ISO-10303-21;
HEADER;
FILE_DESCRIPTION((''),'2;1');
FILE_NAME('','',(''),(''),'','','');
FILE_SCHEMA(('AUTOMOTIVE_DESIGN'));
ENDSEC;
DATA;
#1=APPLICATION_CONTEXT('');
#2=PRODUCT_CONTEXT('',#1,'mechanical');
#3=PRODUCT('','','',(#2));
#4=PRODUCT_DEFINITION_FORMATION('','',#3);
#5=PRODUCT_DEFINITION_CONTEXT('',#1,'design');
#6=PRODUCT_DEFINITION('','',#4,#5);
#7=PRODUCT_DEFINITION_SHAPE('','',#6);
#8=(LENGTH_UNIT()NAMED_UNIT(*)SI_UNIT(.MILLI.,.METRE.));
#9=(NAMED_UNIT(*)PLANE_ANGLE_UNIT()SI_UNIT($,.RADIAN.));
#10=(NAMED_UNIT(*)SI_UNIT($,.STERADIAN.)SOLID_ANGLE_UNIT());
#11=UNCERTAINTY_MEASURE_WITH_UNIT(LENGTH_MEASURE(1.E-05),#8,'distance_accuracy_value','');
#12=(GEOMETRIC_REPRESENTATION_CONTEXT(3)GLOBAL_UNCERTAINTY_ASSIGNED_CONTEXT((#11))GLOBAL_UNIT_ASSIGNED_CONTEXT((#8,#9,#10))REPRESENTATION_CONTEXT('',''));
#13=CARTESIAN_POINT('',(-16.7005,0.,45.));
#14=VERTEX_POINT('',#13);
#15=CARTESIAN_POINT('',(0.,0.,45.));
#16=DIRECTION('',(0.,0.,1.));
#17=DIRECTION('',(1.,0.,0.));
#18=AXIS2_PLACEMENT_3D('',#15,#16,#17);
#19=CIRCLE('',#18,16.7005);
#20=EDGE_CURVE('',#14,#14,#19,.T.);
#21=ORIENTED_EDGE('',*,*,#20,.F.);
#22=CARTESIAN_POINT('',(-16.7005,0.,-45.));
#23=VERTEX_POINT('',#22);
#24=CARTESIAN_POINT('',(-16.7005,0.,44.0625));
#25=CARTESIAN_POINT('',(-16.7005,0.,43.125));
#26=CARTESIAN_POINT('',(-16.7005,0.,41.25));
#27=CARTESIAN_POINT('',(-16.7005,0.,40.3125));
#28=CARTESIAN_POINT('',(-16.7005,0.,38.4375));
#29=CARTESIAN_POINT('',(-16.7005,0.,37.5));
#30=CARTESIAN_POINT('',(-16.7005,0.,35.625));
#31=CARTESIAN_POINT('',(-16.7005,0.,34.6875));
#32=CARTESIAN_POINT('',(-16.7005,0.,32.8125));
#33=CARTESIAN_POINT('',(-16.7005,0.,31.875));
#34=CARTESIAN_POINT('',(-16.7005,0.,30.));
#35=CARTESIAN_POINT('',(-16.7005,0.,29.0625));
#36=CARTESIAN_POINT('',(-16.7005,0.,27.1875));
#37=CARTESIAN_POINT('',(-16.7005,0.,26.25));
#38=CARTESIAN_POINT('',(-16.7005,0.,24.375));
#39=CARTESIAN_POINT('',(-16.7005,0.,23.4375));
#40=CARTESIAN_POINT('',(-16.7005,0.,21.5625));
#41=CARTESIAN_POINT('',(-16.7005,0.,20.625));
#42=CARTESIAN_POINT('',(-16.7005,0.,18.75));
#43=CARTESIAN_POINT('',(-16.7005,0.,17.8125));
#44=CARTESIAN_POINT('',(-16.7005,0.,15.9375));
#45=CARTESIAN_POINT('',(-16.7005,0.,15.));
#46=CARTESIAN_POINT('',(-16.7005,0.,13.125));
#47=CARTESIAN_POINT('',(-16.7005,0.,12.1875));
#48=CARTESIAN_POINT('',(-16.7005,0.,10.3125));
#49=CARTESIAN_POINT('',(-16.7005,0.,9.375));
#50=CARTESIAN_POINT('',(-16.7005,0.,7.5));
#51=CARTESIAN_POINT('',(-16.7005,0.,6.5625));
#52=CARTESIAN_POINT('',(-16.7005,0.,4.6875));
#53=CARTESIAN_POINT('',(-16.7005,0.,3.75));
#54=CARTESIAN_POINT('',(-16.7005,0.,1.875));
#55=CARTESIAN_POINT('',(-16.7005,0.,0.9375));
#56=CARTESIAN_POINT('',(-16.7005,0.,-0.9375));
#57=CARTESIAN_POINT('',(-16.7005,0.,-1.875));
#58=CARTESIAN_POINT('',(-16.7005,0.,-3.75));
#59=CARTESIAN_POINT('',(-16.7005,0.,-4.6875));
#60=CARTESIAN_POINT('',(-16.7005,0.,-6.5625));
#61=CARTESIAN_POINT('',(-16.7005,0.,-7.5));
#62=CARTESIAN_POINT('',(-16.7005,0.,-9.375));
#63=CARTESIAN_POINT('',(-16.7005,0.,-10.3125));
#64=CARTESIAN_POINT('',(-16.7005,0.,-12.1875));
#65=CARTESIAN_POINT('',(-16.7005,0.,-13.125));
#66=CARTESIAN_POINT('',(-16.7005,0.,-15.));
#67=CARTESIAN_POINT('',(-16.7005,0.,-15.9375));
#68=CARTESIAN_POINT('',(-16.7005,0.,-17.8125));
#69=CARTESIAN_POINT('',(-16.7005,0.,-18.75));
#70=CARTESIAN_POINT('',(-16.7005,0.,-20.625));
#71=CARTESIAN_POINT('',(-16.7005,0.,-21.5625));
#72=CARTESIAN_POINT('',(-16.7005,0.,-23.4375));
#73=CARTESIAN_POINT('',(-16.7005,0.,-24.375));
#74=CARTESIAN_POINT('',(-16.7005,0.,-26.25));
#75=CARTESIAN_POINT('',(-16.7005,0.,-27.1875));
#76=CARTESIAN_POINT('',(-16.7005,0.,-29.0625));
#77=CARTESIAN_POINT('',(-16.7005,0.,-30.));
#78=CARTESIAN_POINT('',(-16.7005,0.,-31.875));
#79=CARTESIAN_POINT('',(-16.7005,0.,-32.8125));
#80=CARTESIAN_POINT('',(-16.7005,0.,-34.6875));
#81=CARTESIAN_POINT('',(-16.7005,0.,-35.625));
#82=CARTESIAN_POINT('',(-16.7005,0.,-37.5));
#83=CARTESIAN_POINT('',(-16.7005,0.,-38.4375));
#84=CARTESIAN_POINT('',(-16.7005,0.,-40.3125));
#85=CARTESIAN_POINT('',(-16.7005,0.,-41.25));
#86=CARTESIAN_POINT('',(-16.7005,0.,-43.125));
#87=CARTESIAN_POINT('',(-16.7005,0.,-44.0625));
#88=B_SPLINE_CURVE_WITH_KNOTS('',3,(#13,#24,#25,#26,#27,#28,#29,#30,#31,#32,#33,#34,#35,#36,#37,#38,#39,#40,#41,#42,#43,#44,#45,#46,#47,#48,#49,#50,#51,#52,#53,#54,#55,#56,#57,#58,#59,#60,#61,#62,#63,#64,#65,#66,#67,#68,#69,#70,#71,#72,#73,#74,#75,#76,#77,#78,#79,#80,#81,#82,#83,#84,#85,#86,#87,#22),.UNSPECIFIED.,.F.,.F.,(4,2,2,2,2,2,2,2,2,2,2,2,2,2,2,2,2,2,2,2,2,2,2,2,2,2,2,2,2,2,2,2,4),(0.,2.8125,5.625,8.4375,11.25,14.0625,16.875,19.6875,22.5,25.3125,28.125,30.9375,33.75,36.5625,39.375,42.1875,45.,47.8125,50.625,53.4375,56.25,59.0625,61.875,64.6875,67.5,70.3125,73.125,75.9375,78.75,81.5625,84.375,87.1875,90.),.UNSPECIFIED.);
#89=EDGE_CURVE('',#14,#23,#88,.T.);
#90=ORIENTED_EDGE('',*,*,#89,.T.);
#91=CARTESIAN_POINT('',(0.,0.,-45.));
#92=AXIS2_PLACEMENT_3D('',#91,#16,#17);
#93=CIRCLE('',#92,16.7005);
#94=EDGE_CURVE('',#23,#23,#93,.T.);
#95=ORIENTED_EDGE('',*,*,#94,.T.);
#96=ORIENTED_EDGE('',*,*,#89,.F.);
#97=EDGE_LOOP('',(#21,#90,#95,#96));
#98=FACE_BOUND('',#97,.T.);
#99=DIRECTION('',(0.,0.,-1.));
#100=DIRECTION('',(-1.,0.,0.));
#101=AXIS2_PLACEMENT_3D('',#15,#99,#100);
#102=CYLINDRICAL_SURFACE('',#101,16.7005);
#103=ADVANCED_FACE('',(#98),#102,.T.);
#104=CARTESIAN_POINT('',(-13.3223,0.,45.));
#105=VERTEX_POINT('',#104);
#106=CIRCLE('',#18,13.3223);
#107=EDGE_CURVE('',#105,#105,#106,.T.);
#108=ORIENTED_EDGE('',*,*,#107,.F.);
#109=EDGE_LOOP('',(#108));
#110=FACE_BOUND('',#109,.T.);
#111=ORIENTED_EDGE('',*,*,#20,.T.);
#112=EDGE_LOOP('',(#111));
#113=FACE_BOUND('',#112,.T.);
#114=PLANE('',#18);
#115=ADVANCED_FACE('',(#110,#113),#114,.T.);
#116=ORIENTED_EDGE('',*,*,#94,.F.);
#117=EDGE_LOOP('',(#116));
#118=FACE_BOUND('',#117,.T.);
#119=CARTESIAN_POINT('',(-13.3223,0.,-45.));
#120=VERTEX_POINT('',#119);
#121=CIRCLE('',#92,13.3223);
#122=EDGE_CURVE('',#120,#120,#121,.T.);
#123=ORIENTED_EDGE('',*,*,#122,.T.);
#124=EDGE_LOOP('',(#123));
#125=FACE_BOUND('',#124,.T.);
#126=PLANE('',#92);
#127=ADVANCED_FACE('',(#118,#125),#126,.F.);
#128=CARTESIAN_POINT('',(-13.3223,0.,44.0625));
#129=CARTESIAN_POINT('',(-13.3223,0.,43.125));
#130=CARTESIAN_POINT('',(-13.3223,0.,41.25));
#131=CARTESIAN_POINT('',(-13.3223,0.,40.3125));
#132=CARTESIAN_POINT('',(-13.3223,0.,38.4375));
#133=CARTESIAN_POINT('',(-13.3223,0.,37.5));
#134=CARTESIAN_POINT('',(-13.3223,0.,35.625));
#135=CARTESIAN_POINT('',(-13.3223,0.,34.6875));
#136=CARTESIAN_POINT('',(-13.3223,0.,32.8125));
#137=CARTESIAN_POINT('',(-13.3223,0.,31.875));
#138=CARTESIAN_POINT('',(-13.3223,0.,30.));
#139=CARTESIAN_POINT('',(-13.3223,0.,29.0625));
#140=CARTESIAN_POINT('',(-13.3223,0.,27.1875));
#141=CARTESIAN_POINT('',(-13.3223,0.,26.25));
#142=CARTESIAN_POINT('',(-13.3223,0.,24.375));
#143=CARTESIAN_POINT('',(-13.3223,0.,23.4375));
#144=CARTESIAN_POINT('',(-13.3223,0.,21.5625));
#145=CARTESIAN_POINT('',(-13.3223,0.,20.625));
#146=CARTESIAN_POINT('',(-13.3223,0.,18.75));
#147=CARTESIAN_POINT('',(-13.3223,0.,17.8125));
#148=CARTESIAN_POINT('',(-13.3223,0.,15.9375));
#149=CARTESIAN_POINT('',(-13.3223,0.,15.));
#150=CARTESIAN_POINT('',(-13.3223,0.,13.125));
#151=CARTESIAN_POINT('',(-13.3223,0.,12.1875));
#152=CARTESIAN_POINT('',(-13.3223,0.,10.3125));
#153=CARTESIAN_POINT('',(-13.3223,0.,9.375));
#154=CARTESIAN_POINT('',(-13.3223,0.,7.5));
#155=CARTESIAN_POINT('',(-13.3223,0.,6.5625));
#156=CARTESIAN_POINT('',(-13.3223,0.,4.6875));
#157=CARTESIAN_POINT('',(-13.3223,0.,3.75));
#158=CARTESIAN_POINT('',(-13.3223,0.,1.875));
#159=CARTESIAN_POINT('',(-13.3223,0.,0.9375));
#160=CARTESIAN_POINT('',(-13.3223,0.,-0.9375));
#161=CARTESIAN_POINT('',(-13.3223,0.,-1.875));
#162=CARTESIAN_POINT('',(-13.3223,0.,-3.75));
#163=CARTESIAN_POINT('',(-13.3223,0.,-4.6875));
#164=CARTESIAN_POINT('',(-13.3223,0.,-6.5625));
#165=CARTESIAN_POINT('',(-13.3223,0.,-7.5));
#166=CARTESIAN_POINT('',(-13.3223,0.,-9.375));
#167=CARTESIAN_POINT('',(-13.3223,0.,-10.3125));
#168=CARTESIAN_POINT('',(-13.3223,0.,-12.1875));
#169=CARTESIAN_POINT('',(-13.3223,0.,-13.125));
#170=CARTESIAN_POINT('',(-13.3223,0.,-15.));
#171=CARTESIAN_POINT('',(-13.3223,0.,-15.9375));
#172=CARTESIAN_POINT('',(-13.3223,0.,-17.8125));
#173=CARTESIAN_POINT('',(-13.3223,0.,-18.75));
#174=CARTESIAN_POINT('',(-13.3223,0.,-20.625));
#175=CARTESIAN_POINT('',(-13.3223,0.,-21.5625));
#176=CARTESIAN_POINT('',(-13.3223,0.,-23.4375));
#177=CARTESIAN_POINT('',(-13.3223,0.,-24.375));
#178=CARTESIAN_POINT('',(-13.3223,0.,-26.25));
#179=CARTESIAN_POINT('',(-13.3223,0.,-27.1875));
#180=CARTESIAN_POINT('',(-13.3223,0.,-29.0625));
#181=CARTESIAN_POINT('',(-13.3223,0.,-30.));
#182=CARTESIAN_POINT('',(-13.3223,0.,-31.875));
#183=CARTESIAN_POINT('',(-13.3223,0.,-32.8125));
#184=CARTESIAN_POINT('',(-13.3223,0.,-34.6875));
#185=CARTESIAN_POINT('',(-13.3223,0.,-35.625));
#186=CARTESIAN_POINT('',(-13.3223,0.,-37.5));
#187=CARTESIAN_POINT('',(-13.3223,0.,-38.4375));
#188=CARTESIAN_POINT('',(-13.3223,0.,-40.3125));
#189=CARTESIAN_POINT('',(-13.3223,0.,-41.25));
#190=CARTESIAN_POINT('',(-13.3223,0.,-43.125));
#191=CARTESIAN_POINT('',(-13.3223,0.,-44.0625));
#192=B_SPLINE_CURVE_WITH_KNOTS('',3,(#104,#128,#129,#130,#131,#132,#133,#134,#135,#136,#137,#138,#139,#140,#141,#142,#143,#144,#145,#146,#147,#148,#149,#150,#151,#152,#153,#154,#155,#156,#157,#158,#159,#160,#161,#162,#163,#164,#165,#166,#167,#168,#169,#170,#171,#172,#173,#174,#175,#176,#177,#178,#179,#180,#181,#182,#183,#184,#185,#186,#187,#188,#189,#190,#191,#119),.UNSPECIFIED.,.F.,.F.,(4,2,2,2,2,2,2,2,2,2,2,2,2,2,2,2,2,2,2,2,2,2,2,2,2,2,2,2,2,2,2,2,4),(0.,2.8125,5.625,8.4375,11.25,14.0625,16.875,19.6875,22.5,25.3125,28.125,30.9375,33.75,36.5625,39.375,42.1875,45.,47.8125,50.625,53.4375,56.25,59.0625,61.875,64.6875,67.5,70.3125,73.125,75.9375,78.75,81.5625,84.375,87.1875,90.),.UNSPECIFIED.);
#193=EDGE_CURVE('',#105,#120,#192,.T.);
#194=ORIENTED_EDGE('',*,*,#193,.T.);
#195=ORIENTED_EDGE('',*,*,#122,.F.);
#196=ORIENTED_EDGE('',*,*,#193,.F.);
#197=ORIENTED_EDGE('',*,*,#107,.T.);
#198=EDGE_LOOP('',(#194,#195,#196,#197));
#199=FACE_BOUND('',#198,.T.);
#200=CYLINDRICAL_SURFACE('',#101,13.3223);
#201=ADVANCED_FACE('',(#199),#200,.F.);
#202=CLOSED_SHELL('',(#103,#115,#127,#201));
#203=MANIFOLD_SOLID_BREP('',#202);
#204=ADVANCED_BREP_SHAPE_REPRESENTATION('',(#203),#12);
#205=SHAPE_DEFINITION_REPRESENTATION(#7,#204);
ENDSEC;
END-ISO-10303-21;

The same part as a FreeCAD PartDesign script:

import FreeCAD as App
import Part
import Sketcher

V = App.Vector
Q = App.Units.Quantity

doc = App.newDocument("Part")
body = doc.addObject("PartDesign::Body", "Body")

# Sketch on XY plane
sketch1 = doc.addObject("Sketcher::SketchObject", "Sketch")
body.addObject(sketch1)
sketch1.AttachmentSupport = (doc.XY_Plane, [""])
sketch1.MapMode = "FlatFace"
sketch1.addGeometry([
    Part.Circle(V(0, 0, 0), V(0, 0, 1), 16.7005),
    Part.Circle(V(0, 0, 0), V(0, 0, 1), 13.3223),
], False)
sketch1.addConstraint([
    Sketcher.Constraint("Coincident", 0, 3, -1, 1),
    Sketcher.Constraint("Coincident", 1, 3, -1, 1),
    Sketcher.Constraint("Diameter", 0, Q("1.315 in")),
    Sketcher.Constraint("Diameter", 1, Q("1.049 in")),
])
pad1 = doc.addObject("PartDesign::Pad", "Pad")
body.addObject(pad1)
pad1.Profile = sketch1
pad1.Length = 90
pad1.Midplane = True

doc.recompute()
